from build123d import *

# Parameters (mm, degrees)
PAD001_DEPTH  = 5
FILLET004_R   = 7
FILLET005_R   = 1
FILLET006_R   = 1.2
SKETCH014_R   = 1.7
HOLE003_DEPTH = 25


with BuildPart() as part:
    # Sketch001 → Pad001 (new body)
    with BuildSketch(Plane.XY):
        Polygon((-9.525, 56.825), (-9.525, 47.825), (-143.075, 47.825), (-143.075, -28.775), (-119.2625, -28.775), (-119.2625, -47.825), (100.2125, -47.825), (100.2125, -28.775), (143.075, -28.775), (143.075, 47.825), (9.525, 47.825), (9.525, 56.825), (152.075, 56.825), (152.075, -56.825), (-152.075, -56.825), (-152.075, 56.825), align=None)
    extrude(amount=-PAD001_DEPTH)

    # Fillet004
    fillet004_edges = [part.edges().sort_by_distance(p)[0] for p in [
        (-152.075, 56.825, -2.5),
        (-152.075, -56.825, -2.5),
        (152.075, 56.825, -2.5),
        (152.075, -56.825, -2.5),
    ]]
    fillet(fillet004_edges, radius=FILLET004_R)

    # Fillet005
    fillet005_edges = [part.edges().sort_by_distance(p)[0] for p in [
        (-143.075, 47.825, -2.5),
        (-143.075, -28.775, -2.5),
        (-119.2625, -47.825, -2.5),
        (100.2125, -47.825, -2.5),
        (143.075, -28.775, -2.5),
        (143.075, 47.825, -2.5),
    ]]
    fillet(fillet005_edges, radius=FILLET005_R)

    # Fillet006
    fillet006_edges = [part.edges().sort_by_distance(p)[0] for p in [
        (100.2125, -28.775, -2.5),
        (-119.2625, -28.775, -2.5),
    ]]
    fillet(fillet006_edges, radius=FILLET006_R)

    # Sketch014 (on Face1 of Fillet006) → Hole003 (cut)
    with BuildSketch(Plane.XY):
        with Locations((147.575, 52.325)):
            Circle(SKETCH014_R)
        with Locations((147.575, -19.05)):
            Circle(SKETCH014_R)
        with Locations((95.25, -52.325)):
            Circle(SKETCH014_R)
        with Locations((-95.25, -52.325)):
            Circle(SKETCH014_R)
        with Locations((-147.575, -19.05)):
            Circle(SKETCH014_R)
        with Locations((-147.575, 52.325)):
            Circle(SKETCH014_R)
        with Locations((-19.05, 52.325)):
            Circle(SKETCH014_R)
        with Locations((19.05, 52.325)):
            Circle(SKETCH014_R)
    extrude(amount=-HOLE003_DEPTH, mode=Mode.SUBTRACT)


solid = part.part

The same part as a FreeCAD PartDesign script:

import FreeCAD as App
import Part
import Sketcher
from FreeCAD import Vector


def edges_at(feature, points):
    """Names of the edges that pass closest to the given points."""
    edges = feature.Shape.Edges
    near = lambda p: min(range(len(edges)), key=lambda i: edges[i].distToShape(Part.Vertex(*p))[0])
    return sorted({f"Edge{near(p) + 1}" for p in points})


def add_polygon(sketch, points):
    """Adds a closed chain of lines whose ends are joined by coincident constraints."""
    first, n = sketch.GeometryCount, len(points)
    for a, b in zip(points, points[1:] + points[:1]):
        sketch.addGeometry(Part.LineSegment(App.Vector(*a, 0), App.Vector(*b, 0)), False)
    for i in range(n):
        sketch.addConstraint(Sketcher.Constraint("Coincident", first + i, 2, first + (i + 1) % n, 1))

doc = App.newDocument("Part")
body = doc.addObject("PartDesign::Body", "Body")

# Sketch on XY plane
sketch1 = body.newObject("Sketcher::SketchObject", "Sketch")
sketch1.AttachmentSupport = (doc.getObject("XY_Plane"), [""])
sketch1.MapMode = "FlatFace"
add_polygon(sketch1, [(-10, 48), (-10, 57), (-152, 57), (-152, -57), (152, -57), (152, 57), (10, 57), (10, 48), (143, 48), (143, -29), (100, -29), (100, -48), (-119, -48), (-119, -29), (-143, -29), (-143, 48)])  # lines 0-15
sketch1.addConstraint(Sketcher.Constraint("Vertical", 0))
sketch1.addConstraint(Sketcher.Constraint("Horizontal", 1))
sketch1.addConstraint(Sketcher.Constraint("Vertical", 2))
sketch1.addConstraint(Sketcher.Constraint("Horizontal", 3))
sketch1.addConstraint(Sketcher.Constraint("Vertical", 4))
sketch1.addConstraint(Sketcher.Constraint("Horizontal", 5))
sketch1.addConstraint(Sketcher.Constraint("Vertical", 6))
sketch1.addConstraint(Sketcher.Constraint("Horizontal", 7))
sketch1.addConstraint(Sketcher.Constraint("Vertical", 8))
sketch1.addConstraint(Sketcher.Constraint("Horizontal", 9))
sketch1.addConstraint(Sketcher.Constraint("Vertical", 10))
sketch1.addConstraint(Sketcher.Constraint("Horizontal", 11))
sketch1.addConstraint(Sketcher.Constraint("Vertical", 12))
sketch1.addConstraint(Sketcher.Constraint("Horizontal", 13))
sketch1.addConstraint(Sketcher.Constraint("Vertical", 14))
sketch1.addConstraint(Sketcher.Constraint("Horizontal", 15))
sketch1.addConstraint(Sketcher.Constraint("Symmetric", 1, 2, 3, 2, -1, 1))
sketch1.addConstraint(Sketcher.Constraint("Symmetric", 0, 2, 5, 2, -2))
sketch1.addConstraint(Sketcher.Constraint("Symmetric", 8, 2, 13, 2, -2))
sketch1.addConstraint(Sketcher.Constraint("Horizontal", 7, 2, 14, 2))
sketch1.addConstraint(Sketcher.Constraint("DistanceY", 0, 1, 0, 2, 9.0))
sketch1.addConstraint(Sketcher.Constraint("DistanceY", 8, 2, 8, 1, 76.6))
sketch1.addConstraint(Sketcher.Constraint("DistanceX", 7, 2, 4, 2, 9.0))
sketch1.addConstraint(Sketcher.Constraint("DistanceY", 3, 2, 10, 2, 9.0))
sketch1.addConstraint(Sketcher.Constraint("DistanceX", 1, 2, 1, 1, 142.55))
sketch1.addConstraint(Sketcher.Constraint("DistanceX", 3, 1, 3, 2, 304.15))
sketch1.addConstraint(Sketcher.Constraint("DistanceY", 2, 2, 2, 1, 113.65))
sketch1.addConstraint(Sketcher.Constraint("DistanceX", 11, 2, 11, 1, 219.475))
sketch1.addConstraint(Sketcher.Constraint("DistanceX", 9, 2, 9, 1, 42.8625))
pad1 = body.newObject("PartDesign::Pad", "Pad")
pad1.Profile = sketch1
pad1.Length = 5
pad1.Reversed = True
doc.recompute()

fillet = body.newObject("PartDesign::Fillet", "Fillet")
fillet.Base = (pad1, edges_at(pad1, [
    (-152.075, 56.825, -2.5),
    (-152.075, -56.825, -2.5),
    (152.075, 56.825, -2.5),
    (152.075, -56.825, -2.5),
]))
fillet.Radius = 7
doc.recompute()

fillet2 = body.newObject("PartDesign::Fillet", "Fillet001")
fillet2.Base = (fillet, edges_at(fillet, [
    (-143.075, 47.825, -2.5),
    (-143.075, -28.775, -2.5),
    (-119.263, -47.825, -2.5),
    (100.213, -47.825, -2.5),
    (143.075, -28.775, -2.5),
    (143.075, 47.825, -2.5),
]))
fillet2.Radius = 1
doc.recompute()

fillet3 = body.newObject("PartDesign::Fillet", "Fillet002")
fillet3.Base = (fillet2, edges_at(fillet2, [(100.213, -28.775, -2.5), (-119.263, -28.775, -2.5)]))
fillet3.Radius = 1.2

# Sketch on XY plane
sketch2 = body.newObject("Sketcher::SketchObject", "Sketch001")
sketch2.AttachmentSupport = (doc.getObject("XY_Plane"), [""])
sketch2.MapMode = "FlatFace"
sketch2.addGeometry(Part.Circle(Vector(147.6, 52.3, 0), Vector(0, 0, 1), 1.7), False)
sketch2.addGeometry(Part.Circle(Vector(147.6, -19.1, 0), Vector(0, 0, 1), 1.7), False)
sketch2.addGeometry(Part.Circle(Vector(95.2, -52.3, 0), Vector(0, 0, 1), 1.7), False)
sketch2.addGeometry(Part.Circle(Vector(-95.2, -52.3, 0), Vector(0, 0, 1), 1.7), False)
sketch2.addGeometry(Part.Circle(Vector(-147.6, -19.1, 0), Vector(0, 0, 1), 1.7), False)
sketch2.addGeometry(Part.Circle(Vector(-147.6, 52.3, 0), Vector(0, 0, 1), 1.7), False)
sketch2.addGeometry(Part.Circle(Vector(-19.1, 52.3, 0), Vector(0, 0, 1), 1.7), False)
sketch2.addGeometry(Part.Circle(Vector(19.1, 52.3, 0), Vector(0, 0, 1), 1.7), False)
sketch2.addConstraint(Sketcher.Constraint("Equal", 0, 1))
sketch2.addConstraint(Sketcher.Constraint("Equal", 1, 2))
sketch2.addConstraint(Sketcher.Constraint("Equal", 2, 3))
sketch2.addConstraint(Sketcher.Constraint("Equal", 3, 4))
sketch2.addConstraint(Sketcher.Constraint("Equal", 4, 5))
sketch2.addConstraint(Sketcher.Constraint("Equal", 5, 6))
sketch2.addConstraint(Sketcher.Constraint("Equal", 6, 7))
sketch2.addConstraint(Sketcher.Constraint("Symmetric", 2, 3, 3, 3, -2))
sketch2.addConstraint(Sketcher.Constraint("Symmetric", 1, 3, 4, 3, -2))
sketch2.addConstraint(Sketcher.Constraint("Symmetric", 0, 3, 5, 3, -2))
sketch2.addConstraint(Sketcher.Constraint("Symmetric", 6, 3, 7, 3, -2))
sketch2.addConstraint(Sketcher.Constraint("Horizontal", 5, 3, 6, 3))
sketch2.addConstraint(Sketcher.Constraint("Vertical", 0, 3, 1, 3))
sketch2.addConstraint(Sketcher.Constraint("Diameter", 0, 3.4))
sketch2.addConstraint(Sketcher.Constraint("DistanceX", 3, 3, 2, 3, 190.5))
sketch2.addConstraint(Sketcher.Constraint("DistanceX", 3, 3, 6, 3, 76.2))
sketch2.addConstraint(Sketcher.Constraint("DistanceY", 1, 3, -1, 1, 19.05))
sketch2.addConstraint(Sketcher.Constraint("DistanceY", 2, 3, 0, 3, 104.65))
sketch2.addConstraint(Sketcher.Constraint("DistanceX", 4, 3, 1, 3, 295.15))
sketch2.addConstraint(Sketcher.Constraint("DistanceY", -1, 1, 0, 3, 52.325))
pocket1 = body.newObject("PartDesign::Pocket", "Pocket")
pocket1.Profile = sketch2
pocket1.Length = 25

doc.recompute()
